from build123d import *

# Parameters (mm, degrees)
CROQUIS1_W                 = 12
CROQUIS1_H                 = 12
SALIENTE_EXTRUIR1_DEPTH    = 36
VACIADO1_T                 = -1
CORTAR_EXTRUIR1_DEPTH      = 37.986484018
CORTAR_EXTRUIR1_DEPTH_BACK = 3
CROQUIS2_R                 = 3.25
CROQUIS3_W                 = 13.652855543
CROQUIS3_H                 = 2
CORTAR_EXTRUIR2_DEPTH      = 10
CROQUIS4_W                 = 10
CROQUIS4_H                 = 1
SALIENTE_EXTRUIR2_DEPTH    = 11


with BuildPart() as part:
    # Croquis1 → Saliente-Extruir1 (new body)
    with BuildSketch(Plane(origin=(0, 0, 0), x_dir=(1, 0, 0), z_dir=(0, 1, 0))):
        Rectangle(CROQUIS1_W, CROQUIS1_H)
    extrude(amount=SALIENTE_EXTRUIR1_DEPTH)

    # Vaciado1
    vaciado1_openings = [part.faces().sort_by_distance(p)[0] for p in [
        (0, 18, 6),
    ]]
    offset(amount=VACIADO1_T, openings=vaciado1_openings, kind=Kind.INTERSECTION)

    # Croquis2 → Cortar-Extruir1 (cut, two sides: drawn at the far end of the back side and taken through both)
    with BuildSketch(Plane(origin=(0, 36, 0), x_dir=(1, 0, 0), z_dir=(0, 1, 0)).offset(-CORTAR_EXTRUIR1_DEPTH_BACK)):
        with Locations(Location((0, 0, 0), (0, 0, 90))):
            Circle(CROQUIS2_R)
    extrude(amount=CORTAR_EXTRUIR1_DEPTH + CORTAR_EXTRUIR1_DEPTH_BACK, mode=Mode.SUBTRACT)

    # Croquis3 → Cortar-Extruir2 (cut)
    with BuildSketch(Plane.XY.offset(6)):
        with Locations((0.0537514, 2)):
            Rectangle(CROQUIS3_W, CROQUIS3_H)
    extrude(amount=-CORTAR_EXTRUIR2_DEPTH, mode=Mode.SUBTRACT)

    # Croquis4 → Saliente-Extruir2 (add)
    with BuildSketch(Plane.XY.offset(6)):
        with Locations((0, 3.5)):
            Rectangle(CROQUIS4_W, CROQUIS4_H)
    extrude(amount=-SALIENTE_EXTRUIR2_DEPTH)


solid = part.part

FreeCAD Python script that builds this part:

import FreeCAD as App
import Part
import Sketcher

V = App.Vector


def faces_at(feature, points):
    """Names of the faces that lie closest to the given points."""
    faces = feature.Shape.Faces
    near = lambda p: min(range(len(faces)), key=lambda i: faces[i].distToShape(Part.Vertex(*p))[0])
    return sorted({f"Face{near(p) + 1}" for p in points})

doc = App.newDocument("Part")
body = doc.addObject("PartDesign::Body", "Body")

# Sketch on XZ plane
sketch1 = doc.addObject("Sketcher::SketchObject", "Sketch")
body.addObject(sketch1)
sketch1.AttachmentSupport = (doc.XZ_Plane, [""])
sketch1.MapMode = "FlatFace"
sketch1.addGeometry(Part.LineSegment(V(-6, -6, 0), V(-6, 6, 0)), False)
sketch1.addGeometry(Part.LineSegment(V(-6, 6, 0), V(6, 6, 0)), False)
sketch1.addGeometry(Part.LineSegment(V(6, 6, 0), V(6, -6, 0)), False)
sketch1.addGeometry(Part.LineSegment(V(6, -6, 0), V(-6, -6, 0)), False)
sketch1.addConstraint(Sketcher.Constraint("Coincident", 0, 2, 1, 1))
sketch1.addConstraint(Sketcher.Constraint("Coincident", 1, 2, 2, 1))
sketch1.addConstraint(Sketcher.Constraint("Coincident", 2, 2, 3, 1))
sketch1.addConstraint(Sketcher.Constraint("Coincident", 3, 2, 0, 1))
sketch1.addConstraint(Sketcher.Constraint("Vertical", 0))
sketch1.addConstraint(Sketcher.Constraint("Horizontal", 1))
sketch1.addConstraint(Sketcher.Constraint("Vertical", 2))
sketch1.addConstraint(Sketcher.Constraint("Horizontal", 3))
sketch1.addConstraint(Sketcher.Constraint("Symmetric", 0, 2, 2, 2, -1, 1))
sketch1.addConstraint(Sketcher.Constraint("Equal", 3, 0))
sketch1.addConstraint(Sketcher.Constraint("DistanceX", 1, 1, 1, 2, 12.0))
pad1 = doc.addObject("PartDesign::Pad", "Pad")
body.addObject(pad1)
pad1.Profile = sketch1
pad1.Length = 36
pad1.Reversed = True
doc.recompute()

thickness = doc.addObject("PartDesign::Thickness", "Thickness")
body.addObject(thickness)
thickness.Base = (pad1, faces_at(pad1, [(0, 18, 6)]))
thickness.Value = 1
thickness.Reversed = True
thickness.Join = "Intersection"

# Sketch on XZ plane
sketch2 = doc.addObject("Sketcher::SketchObject", "Sketch001")
body.addObject(sketch2)
sketch2.AttachmentSupport = (doc.XZ_Plane, [""])
sketch2.MapMode = "FlatFace"
sketch2.AttachmentOffset = App.Placement(V(0, 0, -36), App.Rotation())
sketch2.addGeometry(Part.Circle(V(0, 0, 0), V(0, 0, 1), 3.2), False)
sketch2.addConstraint(Sketcher.Constraint("Coincident", 0, 3, -1, 1))
sketch2.addConstraint(Sketcher.Constraint("Diameter", 0, 6.5))
pocket1 = doc.addObject("PartDesign::Pocket", "Pocket")
body.addObject(pocket1)
pocket1.Profile = sketch2
pocket1.Type = "TwoLengths"
pocket1.Length = 37.986484
pocket1.Length2 = 3

# Sketch on XY plane
sketch3 = doc.addObject("Sketcher::SketchObject", "Sketch002")
body.addObject(sketch3)
sketch3.AttachmentSupport = (doc.XY_Plane, [""])
sketch3.MapMode = "FlatFace"
sketch3.AttachmentOffset = App.Placement(V(0, 0, 6), App.Rotation())
sketch3.addGeometry(Part.LineSegment(V(-6.8, 3, 0), V(-6.8, 1, 0)), False)
sketch3.addGeometry(Part.LineSegment(V(-6.8, 1, 0), V(6.9, 1, 0)), False)
sketch3.addGeometry(Part.LineSegment(V(6.9, 1, 0), V(6.9, 3, 0)), False)
sketch3.addGeometry(Part.LineSegment(V(6.9, 3, 0), V(-6.8, 3, 0)), False)
sketch3.addConstraint(Sketcher.Constraint("Coincident", 0, 2, 1, 1))
sketch3.addConstraint(Sketcher.Constraint("Coincident", 1, 2, 2, 1))
sketch3.addConstraint(Sketcher.Constraint("Coincident", 2, 2, 3, 1))
sketch3.addConstraint(Sketcher.Constraint("Coincident", 3, 2, 0, 1))
sketch3.addConstraint(Sketcher.Constraint("Vertical", 0))
sketch3.addConstraint(Sketcher.Constraint("Horizontal", 1))
sketch3.addConstraint(Sketcher.Constraint("Vertical", 2))
sketch3.addConstraint(Sketcher.Constraint("Horizontal", 3))
sketch3.addConstraint(Sketcher.Constraint("DistanceY", 0, 2, 0, 1, 2.0))
sketch3.addConstraint(Sketcher.Constraint("DistanceY", -1, 1, 0, 2, 1.0))
sketch3.addConstraint(Sketcher.Constraint("DistanceX", 1, 1, 1, 2, 13.652856))
sketch3.addConstraint(Sketcher.Constraint("DistanceX", -1, 1, 1, 2, 6.880179))
pocket2 = doc.addObject("PartDesign::Pocket", "Pocket001")
body.addObject(pocket2)
pocket2.Profile = sketch3
pocket2.Length = 10

# Sketch on XY plane
sketch4 = doc.addObject("Sketcher::SketchObject", "Sketch003")
body.addObject(sketch4)
sketch4.AttachmentSupport = (doc.XY_Plane, [""])
sketch4.MapMode = "FlatFace"
sketch4.AttachmentOffset = App.Placement(V(0, 0, 6), App.Rotation())
sketch4.addGeometry(Part.LineSegment(V(-5, 4, 0), V(-5, 3, 0)), False)
sketch4.addGeometry(Part.LineSegment(V(-5, 3, 0), V(5, 3, 0)), False)
sketch4.addGeometry(Part.LineSegment(V(5, 3, 0), V(5, 4, 0)), False)
sketch4.addGeometry(Part.LineSegment(V(5, 4, 0), V(-5, 4, 0)), False)
sketch4.addConstraint(Sketcher.Constraint("Coincident", 0, 2, 1, 1))
sketch4.addConstraint(Sketcher.Constraint("Coincident", 1, 2, 2, 1))
sketch4.addConstraint(Sketcher.Constraint("Coincident", 2, 2, 3, 1))
sketch4.addConstraint(Sketcher.Constraint("Coincident", 3, 2, 0, 1))
sketch4.addConstraint(Sketcher.Constraint("Vertical", 0))
sketch4.addConstraint(Sketcher.Constraint("Horizontal", 1))
sketch4.addConstraint(Sketcher.Constraint("Vertical", 2))
sketch4.addConstraint(Sketcher.Constraint("Horizontal", 3))
sketch4.addConstraint(Sketcher.Constraint("DistanceX", 1, 1, 1, 2, 10.0))
sketch4.addConstraint(Sketcher.Constraint("DistanceY", 0, 2, 0, 1, 1.0))
sketch4.addConstraint(Sketcher.Constraint("DistanceX", 0, 2, -1, 1, 5.0))
sketch4.addConstraint(Sketcher.Constraint("DistanceY", -1, 1, 0, 2, 3.0))
pad2 = doc.addObject("PartDesign::Pad", "Pad001")
body.addObject(pad2)
pad2.Profile = sketch4
pad2.Length = 11
pad2.Reversed = True

doc.recompute()
